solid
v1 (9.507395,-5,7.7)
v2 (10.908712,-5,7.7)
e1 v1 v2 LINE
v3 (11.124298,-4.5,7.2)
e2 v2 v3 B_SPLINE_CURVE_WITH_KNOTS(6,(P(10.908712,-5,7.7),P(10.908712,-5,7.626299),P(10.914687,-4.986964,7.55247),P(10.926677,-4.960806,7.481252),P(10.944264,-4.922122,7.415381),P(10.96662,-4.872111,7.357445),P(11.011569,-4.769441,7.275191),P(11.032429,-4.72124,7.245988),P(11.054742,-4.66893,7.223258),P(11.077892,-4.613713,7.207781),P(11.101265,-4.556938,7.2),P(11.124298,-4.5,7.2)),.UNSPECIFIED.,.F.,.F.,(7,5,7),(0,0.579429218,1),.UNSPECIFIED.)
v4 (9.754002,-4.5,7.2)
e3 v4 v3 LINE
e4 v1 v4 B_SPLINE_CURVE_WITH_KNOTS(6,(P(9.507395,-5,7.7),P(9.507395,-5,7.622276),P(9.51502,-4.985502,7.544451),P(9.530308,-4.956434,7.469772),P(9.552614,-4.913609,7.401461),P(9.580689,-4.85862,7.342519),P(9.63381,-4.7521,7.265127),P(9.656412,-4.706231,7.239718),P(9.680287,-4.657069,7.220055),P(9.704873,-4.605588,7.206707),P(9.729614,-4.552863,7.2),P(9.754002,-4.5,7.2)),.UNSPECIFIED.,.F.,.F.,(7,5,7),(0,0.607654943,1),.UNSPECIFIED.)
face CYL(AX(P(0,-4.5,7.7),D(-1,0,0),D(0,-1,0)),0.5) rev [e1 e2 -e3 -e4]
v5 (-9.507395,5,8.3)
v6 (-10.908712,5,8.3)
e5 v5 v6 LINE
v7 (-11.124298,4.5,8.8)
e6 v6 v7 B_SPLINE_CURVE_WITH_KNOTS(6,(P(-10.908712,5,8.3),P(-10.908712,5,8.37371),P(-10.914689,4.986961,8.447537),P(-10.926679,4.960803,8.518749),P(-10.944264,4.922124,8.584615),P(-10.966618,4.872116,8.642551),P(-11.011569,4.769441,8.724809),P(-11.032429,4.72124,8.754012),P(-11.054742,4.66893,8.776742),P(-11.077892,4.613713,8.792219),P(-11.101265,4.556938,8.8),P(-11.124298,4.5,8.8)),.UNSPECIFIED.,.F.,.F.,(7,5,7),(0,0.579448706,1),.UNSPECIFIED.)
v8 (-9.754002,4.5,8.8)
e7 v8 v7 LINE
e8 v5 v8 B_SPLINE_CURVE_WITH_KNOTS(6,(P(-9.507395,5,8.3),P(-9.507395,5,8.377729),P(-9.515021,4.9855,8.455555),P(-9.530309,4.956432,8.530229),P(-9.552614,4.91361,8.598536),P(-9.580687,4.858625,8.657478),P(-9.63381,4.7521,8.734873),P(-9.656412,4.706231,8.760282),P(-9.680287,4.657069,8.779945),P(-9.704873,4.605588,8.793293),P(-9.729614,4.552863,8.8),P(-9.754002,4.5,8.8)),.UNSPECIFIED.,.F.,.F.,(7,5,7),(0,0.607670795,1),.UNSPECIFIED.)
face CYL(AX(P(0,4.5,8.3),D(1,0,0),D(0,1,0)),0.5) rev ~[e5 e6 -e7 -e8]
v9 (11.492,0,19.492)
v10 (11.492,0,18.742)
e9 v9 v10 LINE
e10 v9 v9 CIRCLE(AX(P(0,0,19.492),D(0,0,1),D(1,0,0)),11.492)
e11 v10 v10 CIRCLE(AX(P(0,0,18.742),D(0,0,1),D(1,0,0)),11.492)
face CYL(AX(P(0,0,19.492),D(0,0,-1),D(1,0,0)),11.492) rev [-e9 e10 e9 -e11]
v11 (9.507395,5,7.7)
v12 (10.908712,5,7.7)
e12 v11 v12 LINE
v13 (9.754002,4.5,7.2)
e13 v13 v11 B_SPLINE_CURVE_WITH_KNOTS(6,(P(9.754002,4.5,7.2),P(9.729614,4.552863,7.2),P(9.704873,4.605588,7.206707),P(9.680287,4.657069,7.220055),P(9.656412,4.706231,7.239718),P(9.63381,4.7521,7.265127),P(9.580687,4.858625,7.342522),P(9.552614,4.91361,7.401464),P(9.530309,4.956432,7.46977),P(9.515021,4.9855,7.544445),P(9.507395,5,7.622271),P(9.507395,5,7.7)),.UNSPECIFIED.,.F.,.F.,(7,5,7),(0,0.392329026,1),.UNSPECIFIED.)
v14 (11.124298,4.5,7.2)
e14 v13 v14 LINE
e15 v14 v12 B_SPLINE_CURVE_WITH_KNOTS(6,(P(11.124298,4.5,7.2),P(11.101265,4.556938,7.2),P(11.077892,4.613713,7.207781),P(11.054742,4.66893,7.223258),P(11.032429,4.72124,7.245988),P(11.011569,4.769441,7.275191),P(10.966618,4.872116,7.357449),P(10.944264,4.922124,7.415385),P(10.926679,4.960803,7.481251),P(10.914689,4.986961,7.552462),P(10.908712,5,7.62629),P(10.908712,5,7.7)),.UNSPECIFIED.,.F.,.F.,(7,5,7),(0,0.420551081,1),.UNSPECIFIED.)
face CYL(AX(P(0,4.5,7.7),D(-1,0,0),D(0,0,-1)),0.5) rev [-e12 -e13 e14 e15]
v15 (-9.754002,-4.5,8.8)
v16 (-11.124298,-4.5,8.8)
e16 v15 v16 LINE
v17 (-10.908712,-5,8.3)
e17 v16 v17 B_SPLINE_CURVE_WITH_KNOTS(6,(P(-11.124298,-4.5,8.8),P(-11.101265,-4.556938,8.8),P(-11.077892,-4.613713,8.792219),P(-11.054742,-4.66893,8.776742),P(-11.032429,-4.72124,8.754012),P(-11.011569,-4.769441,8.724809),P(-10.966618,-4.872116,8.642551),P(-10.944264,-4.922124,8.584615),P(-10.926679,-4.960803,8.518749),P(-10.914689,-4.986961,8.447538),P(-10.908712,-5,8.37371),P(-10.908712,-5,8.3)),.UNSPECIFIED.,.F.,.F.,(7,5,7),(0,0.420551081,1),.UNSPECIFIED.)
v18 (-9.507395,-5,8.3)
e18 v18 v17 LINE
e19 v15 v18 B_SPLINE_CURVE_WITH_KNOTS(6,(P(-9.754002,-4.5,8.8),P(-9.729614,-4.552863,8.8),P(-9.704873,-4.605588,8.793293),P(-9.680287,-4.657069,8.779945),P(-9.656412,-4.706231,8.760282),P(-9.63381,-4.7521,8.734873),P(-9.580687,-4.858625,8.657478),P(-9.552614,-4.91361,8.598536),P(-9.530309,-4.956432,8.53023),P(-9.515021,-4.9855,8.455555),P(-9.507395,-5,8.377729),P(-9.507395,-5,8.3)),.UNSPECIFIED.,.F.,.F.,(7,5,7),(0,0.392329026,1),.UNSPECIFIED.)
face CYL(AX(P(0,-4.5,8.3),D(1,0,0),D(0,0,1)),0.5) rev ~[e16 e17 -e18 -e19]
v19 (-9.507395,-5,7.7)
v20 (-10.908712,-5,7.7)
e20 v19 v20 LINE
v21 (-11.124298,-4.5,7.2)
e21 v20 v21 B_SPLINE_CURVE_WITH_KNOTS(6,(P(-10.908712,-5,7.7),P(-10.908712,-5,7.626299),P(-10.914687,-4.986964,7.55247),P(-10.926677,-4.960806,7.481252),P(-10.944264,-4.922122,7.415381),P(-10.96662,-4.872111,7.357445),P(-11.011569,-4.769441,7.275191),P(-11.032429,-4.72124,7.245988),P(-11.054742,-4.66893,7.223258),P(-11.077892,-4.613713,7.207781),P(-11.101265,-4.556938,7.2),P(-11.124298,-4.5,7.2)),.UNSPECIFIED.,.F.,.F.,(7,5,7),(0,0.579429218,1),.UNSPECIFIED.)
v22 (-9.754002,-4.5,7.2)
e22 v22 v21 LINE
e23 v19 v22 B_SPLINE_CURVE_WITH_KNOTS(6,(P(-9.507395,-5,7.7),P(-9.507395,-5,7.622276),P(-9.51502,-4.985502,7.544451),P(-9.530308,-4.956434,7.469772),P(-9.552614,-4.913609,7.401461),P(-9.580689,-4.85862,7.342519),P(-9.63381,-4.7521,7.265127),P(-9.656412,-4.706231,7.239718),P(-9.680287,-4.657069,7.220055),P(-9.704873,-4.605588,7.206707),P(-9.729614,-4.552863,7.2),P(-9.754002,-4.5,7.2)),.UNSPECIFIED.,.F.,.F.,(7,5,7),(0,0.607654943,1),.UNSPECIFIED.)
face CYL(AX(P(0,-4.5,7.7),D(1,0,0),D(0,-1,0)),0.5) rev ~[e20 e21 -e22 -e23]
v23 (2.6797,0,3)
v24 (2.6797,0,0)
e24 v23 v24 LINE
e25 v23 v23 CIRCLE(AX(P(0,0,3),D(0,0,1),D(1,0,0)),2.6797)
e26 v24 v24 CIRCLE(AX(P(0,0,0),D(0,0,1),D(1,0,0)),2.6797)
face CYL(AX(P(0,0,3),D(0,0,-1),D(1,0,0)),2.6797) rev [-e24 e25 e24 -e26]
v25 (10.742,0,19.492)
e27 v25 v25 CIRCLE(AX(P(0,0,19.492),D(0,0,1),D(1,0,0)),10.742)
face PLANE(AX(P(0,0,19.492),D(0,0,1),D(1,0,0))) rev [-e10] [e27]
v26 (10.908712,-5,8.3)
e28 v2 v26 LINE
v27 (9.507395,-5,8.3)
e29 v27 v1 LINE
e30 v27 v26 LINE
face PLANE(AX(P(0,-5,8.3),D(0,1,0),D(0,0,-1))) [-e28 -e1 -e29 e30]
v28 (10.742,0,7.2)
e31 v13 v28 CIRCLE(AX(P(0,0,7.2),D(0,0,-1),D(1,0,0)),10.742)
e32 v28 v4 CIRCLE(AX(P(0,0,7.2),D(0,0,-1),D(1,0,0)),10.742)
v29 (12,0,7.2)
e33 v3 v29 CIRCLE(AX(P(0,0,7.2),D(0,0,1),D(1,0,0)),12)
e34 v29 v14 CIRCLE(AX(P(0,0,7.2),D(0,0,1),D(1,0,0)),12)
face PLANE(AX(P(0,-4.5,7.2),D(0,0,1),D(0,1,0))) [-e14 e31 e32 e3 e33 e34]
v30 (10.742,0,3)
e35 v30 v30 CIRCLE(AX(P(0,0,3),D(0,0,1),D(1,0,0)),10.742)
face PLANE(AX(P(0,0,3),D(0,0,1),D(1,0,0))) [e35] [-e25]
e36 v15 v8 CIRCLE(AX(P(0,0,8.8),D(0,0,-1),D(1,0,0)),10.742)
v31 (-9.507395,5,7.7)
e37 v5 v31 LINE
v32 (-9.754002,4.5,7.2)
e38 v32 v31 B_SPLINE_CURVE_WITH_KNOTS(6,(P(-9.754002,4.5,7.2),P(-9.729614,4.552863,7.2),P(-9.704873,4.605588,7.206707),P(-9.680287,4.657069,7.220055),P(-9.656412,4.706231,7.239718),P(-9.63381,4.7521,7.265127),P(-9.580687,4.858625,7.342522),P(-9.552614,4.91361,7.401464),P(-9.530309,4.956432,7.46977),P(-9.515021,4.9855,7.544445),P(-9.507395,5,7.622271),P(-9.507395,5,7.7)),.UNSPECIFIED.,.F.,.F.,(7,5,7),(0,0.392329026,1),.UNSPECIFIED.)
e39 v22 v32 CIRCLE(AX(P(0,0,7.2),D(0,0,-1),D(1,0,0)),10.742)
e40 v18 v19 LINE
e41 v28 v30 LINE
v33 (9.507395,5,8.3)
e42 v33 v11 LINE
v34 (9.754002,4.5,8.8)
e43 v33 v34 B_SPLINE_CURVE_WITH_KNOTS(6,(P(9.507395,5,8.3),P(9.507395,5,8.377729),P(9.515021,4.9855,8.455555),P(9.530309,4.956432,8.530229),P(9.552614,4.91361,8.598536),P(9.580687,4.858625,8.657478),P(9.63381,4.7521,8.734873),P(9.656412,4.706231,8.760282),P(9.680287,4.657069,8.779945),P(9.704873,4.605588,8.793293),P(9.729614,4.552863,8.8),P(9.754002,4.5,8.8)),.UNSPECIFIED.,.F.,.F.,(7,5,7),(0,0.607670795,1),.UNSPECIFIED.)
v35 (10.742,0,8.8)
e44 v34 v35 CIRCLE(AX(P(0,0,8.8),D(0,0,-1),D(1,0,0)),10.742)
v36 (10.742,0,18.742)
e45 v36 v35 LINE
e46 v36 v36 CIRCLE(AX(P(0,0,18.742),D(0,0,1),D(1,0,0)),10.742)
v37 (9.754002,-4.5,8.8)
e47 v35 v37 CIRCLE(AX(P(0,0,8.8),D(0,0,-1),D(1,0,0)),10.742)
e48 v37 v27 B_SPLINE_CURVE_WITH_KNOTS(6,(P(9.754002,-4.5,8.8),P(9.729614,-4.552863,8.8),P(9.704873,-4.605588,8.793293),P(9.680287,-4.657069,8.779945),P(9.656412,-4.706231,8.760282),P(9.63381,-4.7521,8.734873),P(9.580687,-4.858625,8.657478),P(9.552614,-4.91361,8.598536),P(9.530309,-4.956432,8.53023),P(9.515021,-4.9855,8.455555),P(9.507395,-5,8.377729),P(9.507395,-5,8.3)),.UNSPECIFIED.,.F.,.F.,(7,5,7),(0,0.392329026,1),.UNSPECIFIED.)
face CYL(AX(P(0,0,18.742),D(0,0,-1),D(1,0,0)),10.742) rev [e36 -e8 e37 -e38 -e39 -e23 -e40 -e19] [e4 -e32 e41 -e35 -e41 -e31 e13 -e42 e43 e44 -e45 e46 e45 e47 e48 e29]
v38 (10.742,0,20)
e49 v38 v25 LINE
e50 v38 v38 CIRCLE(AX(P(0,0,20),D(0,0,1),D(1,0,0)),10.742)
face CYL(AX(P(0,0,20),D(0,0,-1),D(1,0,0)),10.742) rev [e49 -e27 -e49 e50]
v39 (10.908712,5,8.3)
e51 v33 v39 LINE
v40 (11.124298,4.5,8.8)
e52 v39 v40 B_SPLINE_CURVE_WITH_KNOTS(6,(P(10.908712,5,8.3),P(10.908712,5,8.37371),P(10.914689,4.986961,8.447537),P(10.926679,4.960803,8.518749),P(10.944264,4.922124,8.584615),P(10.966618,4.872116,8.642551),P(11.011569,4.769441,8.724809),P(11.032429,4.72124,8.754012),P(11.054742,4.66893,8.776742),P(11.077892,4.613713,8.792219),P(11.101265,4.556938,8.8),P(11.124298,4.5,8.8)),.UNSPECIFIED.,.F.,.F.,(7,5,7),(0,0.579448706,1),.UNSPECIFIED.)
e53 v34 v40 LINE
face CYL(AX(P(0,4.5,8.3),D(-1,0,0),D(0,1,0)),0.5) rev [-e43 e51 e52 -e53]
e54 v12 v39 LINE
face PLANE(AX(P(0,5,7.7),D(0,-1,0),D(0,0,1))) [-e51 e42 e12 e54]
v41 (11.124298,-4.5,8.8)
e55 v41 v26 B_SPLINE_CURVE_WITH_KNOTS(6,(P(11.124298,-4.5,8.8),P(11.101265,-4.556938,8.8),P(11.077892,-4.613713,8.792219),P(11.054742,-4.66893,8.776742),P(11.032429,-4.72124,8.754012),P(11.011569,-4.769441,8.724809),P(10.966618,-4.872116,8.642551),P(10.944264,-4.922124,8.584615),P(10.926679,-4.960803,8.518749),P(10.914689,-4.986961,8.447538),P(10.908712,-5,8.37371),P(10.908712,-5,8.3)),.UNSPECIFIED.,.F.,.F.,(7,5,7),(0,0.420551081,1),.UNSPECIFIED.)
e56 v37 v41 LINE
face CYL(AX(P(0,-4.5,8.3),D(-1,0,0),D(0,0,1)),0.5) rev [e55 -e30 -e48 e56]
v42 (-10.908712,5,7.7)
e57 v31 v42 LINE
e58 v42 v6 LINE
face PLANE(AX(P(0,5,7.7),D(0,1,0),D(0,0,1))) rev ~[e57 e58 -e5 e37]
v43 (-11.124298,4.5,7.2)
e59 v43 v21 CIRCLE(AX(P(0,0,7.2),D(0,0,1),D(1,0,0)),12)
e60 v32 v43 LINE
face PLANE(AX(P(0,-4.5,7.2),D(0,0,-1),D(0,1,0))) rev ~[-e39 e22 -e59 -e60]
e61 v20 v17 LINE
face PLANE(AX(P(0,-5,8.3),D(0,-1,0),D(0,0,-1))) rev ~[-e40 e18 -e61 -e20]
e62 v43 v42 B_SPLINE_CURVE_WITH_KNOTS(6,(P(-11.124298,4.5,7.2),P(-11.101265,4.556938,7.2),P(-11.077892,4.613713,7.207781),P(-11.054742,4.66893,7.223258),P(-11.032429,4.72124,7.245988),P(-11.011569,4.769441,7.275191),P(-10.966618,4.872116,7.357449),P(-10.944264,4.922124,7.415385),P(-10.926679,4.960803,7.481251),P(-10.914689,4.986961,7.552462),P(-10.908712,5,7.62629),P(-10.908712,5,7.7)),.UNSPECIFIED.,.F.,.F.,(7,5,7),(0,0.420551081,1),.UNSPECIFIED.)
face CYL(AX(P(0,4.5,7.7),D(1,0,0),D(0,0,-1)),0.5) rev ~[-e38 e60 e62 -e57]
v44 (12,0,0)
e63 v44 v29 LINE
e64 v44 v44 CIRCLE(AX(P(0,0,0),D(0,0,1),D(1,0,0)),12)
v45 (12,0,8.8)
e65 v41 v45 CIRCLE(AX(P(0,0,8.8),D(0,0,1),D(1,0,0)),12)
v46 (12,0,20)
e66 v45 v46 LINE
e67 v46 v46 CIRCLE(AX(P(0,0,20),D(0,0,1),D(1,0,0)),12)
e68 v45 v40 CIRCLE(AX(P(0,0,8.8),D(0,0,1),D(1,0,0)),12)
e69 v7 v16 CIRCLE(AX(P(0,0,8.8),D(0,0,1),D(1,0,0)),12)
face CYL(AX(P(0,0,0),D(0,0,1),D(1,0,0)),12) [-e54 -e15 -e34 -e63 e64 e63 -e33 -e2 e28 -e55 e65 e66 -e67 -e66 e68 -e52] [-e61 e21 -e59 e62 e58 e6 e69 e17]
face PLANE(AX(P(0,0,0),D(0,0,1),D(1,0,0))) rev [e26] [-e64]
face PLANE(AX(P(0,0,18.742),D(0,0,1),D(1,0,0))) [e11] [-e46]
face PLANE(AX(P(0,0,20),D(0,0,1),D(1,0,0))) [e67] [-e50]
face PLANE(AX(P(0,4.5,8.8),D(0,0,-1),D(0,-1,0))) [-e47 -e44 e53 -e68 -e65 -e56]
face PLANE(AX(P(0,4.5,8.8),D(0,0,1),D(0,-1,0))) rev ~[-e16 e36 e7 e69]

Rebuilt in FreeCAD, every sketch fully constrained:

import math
import FreeCAD as App
import Part
import Sketcher
from FreeCAD import Vector


def add_polygon(sketch, points):
    """Adds a closed chain of lines whose ends are joined by coincident constraints."""
    first, n = sketch.GeometryCount, len(points)
    for a, b in zip(points, points[1:] + points[:1]):
        sketch.addGeometry(Part.LineSegment(App.Vector(*a, 0), App.Vector(*b, 0)), False)
    for i in range(n):
        sketch.addConstraint(Sketcher.Constraint("Coincident", first + i, 2, first + (i + 1) % n, 1))

doc = App.newDocument("Part")
body = doc.addObject("PartDesign::Body", "Body")

# Sketch on XZ plane
sketch1 = doc.addObject("Sketcher::SketchObject", "Sketch")
body.addObject(sketch1)
sketch1.AttachmentSupport = (doc.XZ_Plane, [""])
sketch1.MapMode = "FlatFace"
add_polygon(sketch1, [(2.7, 3), (2.7, 0), (12, 0), (12, 20), (10.7, 20), (10.7, 19.5), (11.5, 19.5), (11.5, 18.7), (10.7, 18.7), (10.7, 3)])  # lines 0-9
sketch1.addConstraint([
    Sketcher.Constraint("Vertical", 0),
    Sketcher.Constraint("Horizontal", 1),
    Sketcher.Constraint("Vertical", 2),
    Sketcher.Constraint("Horizontal", 3),
    Sketcher.Constraint("Vertical", 4),
    Sketcher.Constraint("Horizontal", 5),
    Sketcher.Constraint("Vertical", 6),
    Sketcher.Constraint("Horizontal", 7),
    Sketcher.Constraint("Vertical", 8),
    Sketcher.Constraint("Horizontal", 9),
    Sketcher.Constraint("PointOnObject", 0, 2, -1),
    Sketcher.Constraint("Vertical", 4, 2, 7, 2),
    Sketcher.Constraint("Equal", 7, 6),
    Sketcher.Constraint("DistanceY", 0, 2, 0, 1, 3.0),
    Sketcher.Constraint("DistanceY", 2, 1, 2, 2, 20.0),
    Sketcher.Constraint("DistanceX", -1, 1, 1, 2, 12.0),
    Sketcher.Constraint("DistanceX", 5, 1, 5, 2, 0.75),
    Sketcher.Constraint("DistanceX", 3, 2, 3, 1, 1.258),
    Sketcher.Constraint("DistanceY", 4, 2, 4, 1, 0.508),
    Sketcher.Constraint("DistanceX", 1, 1, 1, 2, 9.3203),
])
revolution = doc.addObject("PartDesign::Revolution", "Revolution")
body.addObject(revolution)
revolution.Profile = sketch1
revolution.ReferenceAxis = (sketch1, ["V_Axis"])
revolution.Angle = 360

# Sketch on YZ plane
sketch2 = doc.addObject("Sketcher::SketchObject", "Sketch001")
body.addObject(sketch2)
sketch2.AttachmentSupport = (doc.YZ_Plane, [""])
sketch2.MapMode = "FlatFace"
sketch2.addGeometry([
    Part.ArcOfCircle(Part.Circle(Vector(4.5, 8.3, 0), Vector(0, 0, 1), 0.5), math.radians(0), math.radians(90)),  # 0
    Part.LineSegment(Vector(4.5, 8.8, 0), Vector(-4.5, 8.8, 0)),  # 1
    Part.ArcOfCircle(Part.Circle(Vector(-4.5, 8.3, 0), Vector(0, 0, 1), 0.5), math.radians(90), math.radians(180)),  # 2
    Part.LineSegment(Vector(-5, 8.3, 0), Vector(-5, 7.7, 0)),  # 3
    Part.ArcOfCircle(Part.Circle(Vector(-4.5, 7.7, 0), Vector(0, 0, 1), 0.5), math.radians(180), math.radians(270)),  # 4
    Part.LineSegment(Vector(-4.5, 7.2, 0), Vector(4.5, 7.2, 0)),  # 5
    Part.ArcOfCircle(Part.Circle(Vector(4.5, 7.7, 0), Vector(0, 0, 1), 0.5), math.radians(-90), math.radians(0)),  # 6
    Part.LineSegment(Vector(5, 7.7, 0), Vector(5, 8.3, 0)),  # 7
], False)
sketch2.addConstraint([
    Sketcher.Constraint("Tangent", 0, 2, 1, 1),
    Sketcher.Constraint("Tangent", 1, 2, 2, 1),
    Sketcher.Constraint("Tangent", 2, 2, 3, 1),
    Sketcher.Constraint("Tangent", 3, 2, 4, 1),
    Sketcher.Constraint("Tangent", 4, 2, 5, 1),
    Sketcher.Constraint("Tangent", 5, 2, 6, 1),
    Sketcher.Constraint("Tangent", 6, 2, 7, 1),
    Sketcher.Constraint("Tangent", 7, 2, 0, 1),
    Sketcher.Constraint("Horizontal", 1),
    Sketcher.Constraint("Vertical", 3),
    Sketcher.Constraint("Horizontal", 5),
    Sketcher.Constraint("Vertical", 7),
    Sketcher.Constraint("Equal", 0, 2),
    Sketcher.Constraint("Equal", 2, 4),
    Sketcher.Constraint("Equal", 4, 6),
    Sketcher.Constraint("Radius", 0, 0.5),
    Sketcher.Constraint("DistanceX", 1, 2, 1, 1, 9.0),
    Sketcher.Constraint("DistanceY", 3, 2, 3, 1, 0.6),
    Sketcher.Constraint("DistanceX", 2, 2, -1, 1, 5.0),
    Sketcher.Constraint("DistanceY", -1, 1, 0, 3, 8.3),
])
pocket1 = doc.addObject("PartDesign::Pocket", "Pocket")
body.addObject(pocket1)
pocket1.Profile = sketch2
pocket1.Type = "ThroughAll"
pocket1.Midplane = True

doc.recompute()
